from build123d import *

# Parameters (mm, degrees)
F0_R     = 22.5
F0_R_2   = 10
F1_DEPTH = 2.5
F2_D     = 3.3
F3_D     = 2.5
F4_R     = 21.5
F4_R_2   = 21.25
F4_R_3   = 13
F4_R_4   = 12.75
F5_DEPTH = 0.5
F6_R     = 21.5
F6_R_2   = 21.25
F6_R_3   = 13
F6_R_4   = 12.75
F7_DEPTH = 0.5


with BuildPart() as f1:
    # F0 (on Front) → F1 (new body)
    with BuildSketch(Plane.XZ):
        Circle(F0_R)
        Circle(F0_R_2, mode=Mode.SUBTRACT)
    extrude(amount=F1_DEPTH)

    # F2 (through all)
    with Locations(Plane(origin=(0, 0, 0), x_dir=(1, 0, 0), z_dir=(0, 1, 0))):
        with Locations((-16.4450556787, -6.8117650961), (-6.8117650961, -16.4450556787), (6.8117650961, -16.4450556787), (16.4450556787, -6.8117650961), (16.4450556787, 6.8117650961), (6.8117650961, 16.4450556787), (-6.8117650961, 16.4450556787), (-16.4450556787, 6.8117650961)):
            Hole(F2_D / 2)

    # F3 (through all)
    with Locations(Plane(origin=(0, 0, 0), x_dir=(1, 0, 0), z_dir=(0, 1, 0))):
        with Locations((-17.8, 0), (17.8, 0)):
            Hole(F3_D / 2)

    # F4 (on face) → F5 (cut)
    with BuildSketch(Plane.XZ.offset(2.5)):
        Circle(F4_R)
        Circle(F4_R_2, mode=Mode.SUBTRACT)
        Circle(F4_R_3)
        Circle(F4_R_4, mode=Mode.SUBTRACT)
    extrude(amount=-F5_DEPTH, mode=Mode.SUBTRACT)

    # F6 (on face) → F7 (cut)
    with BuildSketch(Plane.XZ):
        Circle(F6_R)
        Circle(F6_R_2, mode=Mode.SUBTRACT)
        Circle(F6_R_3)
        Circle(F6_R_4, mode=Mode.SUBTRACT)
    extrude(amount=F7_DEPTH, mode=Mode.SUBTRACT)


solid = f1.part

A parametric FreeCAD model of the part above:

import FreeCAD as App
import Part
import Sketcher
from FreeCAD import Vector
Q = App.Units.Quantity

doc = App.newDocument("Part")
body = doc.addObject("PartDesign::Body", "Body")

sketch1 = body.newObject("Sketcher::SketchObject", "Sketch")
sketch1.AttachmentSupport = (doc.getObject("XZ_Plane"), [""])
sketch1.MapMode = "FlatFace"
sketch1.addGeometry([
    Part.Circle(Vector(0, 0, 0), Vector(0, 0, 1), 22),
    Part.Circle(Vector(0, 0, 0), Vector(0, 0, 1), 10),
], False)
sketch1.addConstraint([
    Sketcher.Constraint("Coincident", 0, 3, -1, 1),
    Sketcher.Constraint("Coincident", 1, 3, -1, 1),
    Sketcher.Constraint("Diameter", 0, Q("45 mm")),
    Sketcher.Constraint("Diameter", 1, Q("20 mm")),
])
pad1 = body.newObject("PartDesign::Pad", "Pad")
pad1.Profile = sketch1
pad1.Length = 2.5

sketch2 = body.newObject("Sketcher::SketchObject", "Sketch001")
sketch2.AttachmentSupport = (doc.getObject("XZ_Plane"), [""])
sketch2.MapMode = "FlatFace"
sketch2.addGeometry([
    Part.Circle(Vector(-16.4, 6.8, 0), Vector(0, 0, 1), 1.6),
    Part.Circle(Vector(-6.8, 16.4, 0), Vector(0, 0, 1), 1.6),
    Part.Circle(Vector(6.8, 16.4, 0), Vector(0, 0, 1), 1.6),
    Part.Circle(Vector(16.4, 6.8, 0), Vector(0, 0, 1), 1.6),
    Part.Circle(Vector(16.4, -6.8, 0), Vector(0, 0, 1), 1.6),
    Part.Circle(Vector(6.8, -16.4, 0), Vector(0, 0, 1), 1.6),
    Part.Circle(Vector(-6.8, -16.4, 0), Vector(0, 0, 1), 1.6),
    Part.Circle(Vector(-16.4, -6.8, 0), Vector(0, 0, 1), 1.6),
], False)
sketch2.addConstraint([
    Sketcher.Constraint("Equal", 0, 1),
    Sketcher.Constraint("Equal", 1, 2),
    Sketcher.Constraint("Equal", 2, 3),
    Sketcher.Constraint("Equal", 3, 4),
    Sketcher.Constraint("Equal", 4, 5),
    Sketcher.Constraint("Equal", 5, 6),
    Sketcher.Constraint("Equal", 6, 7),
    Sketcher.Constraint("Symmetric", 0, 3, 4, 3, -1, 1),
    Sketcher.Constraint("Symmetric", 1, 3, 5, 3, -1, 1),
    Sketcher.Constraint("Symmetric", 2, 3, 6, 3, -1, 1),
    Sketcher.Constraint("Symmetric", 3, 3, 7, 3, -1, 1),
    Sketcher.Constraint("Symmetric", 1, 3, 2, 3, -2),
    Sketcher.Constraint("Symmetric", 0, 3, 3, 3, -2),
    Sketcher.Constraint("Diameter", 0, Q("3.3 mm")),
    Sketcher.Constraint("DistanceX", 0, 3, 1, 3, Q("9.633291 mm")),
    Sketcher.Constraint("DistanceY", 0, 3, 1, 3, Q("9.633291 mm")),
    Sketcher.Constraint("DistanceX", 1, 3, 2, 3, Q("13.62353 mm")),
    Sketcher.Constraint("DistanceY", 4, 3, 3, 3, Q("13.62353 mm")),
])
doc.recompute()
hole = body.newObject("PartDesign::Hole", "Hole")
hole.Profile = sketch2
hole.ThreadType = "None"
hole.Diameter = 3.3
hole.DepthType = "ThroughAll"
hole.Reversed = True

sketch3 = body.newObject("Sketcher::SketchObject", "Sketch002")
sketch3.AttachmentSupport = (doc.getObject("XZ_Plane"), [""])
sketch3.MapMode = "FlatFace"
sketch3.addGeometry([
    Part.Circle(Vector(-17.8, 0, 0), Vector(0, 0, 1), 1.2),
    Part.Circle(Vector(17.8, 0, 0), Vector(0, 0, 1), 1.2),
], False)
sketch3.addConstraint([
    Sketcher.Constraint("Equal", 0, 1),
    Sketcher.Constraint("Symmetric", 0, 3, 1, 3, -1, 1),
    Sketcher.Constraint("PointOnObject", 0, 3, -1),
    Sketcher.Constraint("Diameter", 0, Q("2.5 mm")),
    Sketcher.Constraint("DistanceX", 0, 3, -1, 1, Q("17.8 mm")),
])
doc.recompute()
hole2 = body.newObject("PartDesign::Hole", "Hole001")
hole2.Profile = sketch3
hole2.ThreadType = "None"
hole2.Diameter = 2.5
hole2.DepthType = "ThroughAll"
hole2.Reversed = True

sketch4 = body.newObject("Sketcher::SketchObject", "Sketch003")
sketch4.AttachmentSupport = (doc.getObject("XZ_Plane"), [""])
sketch4.MapMode = "FlatFace"
sketch4.AttachmentOffset = App.Placement(Vector(0, 0, 2.5), App.Rotation())
sketch4.addGeometry([
    Part.Circle(Vector(0, 0, 0), Vector(0, 0, 1), 22),
    Part.Circle(Vector(0, 0, 0), Vector(0, 0, 1), 21),
    Part.Circle(Vector(0, 0, 0), Vector(0, 0, 1), 13),
    Part.Circle(Vector(0, 0, 0), Vector(0, 0, 1), 13),
], False)
sketch4.addConstraint([
    Sketcher.Constraint("Coincident", 0, 3, -1, 1),
    Sketcher.Constraint("Coincident", 1, 3, -1, 1),
    Sketcher.Constraint("Coincident", 2, 3, -1, 1),
    Sketcher.Constraint("Coincident", 3, 3, -1, 1),
    Sketcher.Constraint("Diameter", 0, Q("43 mm")),
    Sketcher.Constraint("Diameter", 2, Q("26 mm")),
    Sketcher.Constraint("Diameter", 1, Q("42.5 mm")),
    Sketcher.Constraint("Diameter", 3, Q("25.5 mm")),
])
pocket1 = body.newObject("PartDesign::Pocket", "Pocket")
pocket1.Profile = sketch4
pocket1.Length = 0.5

sketch5 = body.newObject("Sketcher::SketchObject", "Sketch004")
sketch5.AttachmentSupport = (doc.getObject("XZ_Plane"), [""])
sketch5.MapMode = "FlatFace"
sketch5.addGeometry([
    Part.Circle(Vector(0, 0, 0), Vector(0, 0, 1), 22),
    Part.Circle(Vector(0, 0, 0), Vector(0, 0, 1), 21),
    Part.Circle(Vector(0, 0, 0), Vector(0, 0, 1), 13),
    Part.Circle(Vector(0, 0, 0), Vector(0, 0, 1), 13),
], False)
sketch5.addConstraint([
    Sketcher.Constraint("Coincident", 0, 3, -1, 1),
    Sketcher.Constraint("Coincident", 1, 3, -1, 1),
    Sketcher.Constraint("Coincident", 2, 3, -1, 1),
    Sketcher.Constraint("Coincident", 3, 3, -1, 1),
    Sketcher.Constraint("Diameter", 0, Q("43 mm")),
    Sketcher.Constraint("Diameter", 2, Q("26 mm")),
    Sketcher.Constraint("Diameter", 1, Q("42.5 mm")),
    Sketcher.Constraint("Diameter", 3, Q("25.5 mm")),
])
pocket2 = body.newObject("PartDesign::Pocket", "Pocket001")
pocket2.Profile = sketch5
pocket2.Length = 0.5
pocket2.Reversed = True

doc.recompute()
